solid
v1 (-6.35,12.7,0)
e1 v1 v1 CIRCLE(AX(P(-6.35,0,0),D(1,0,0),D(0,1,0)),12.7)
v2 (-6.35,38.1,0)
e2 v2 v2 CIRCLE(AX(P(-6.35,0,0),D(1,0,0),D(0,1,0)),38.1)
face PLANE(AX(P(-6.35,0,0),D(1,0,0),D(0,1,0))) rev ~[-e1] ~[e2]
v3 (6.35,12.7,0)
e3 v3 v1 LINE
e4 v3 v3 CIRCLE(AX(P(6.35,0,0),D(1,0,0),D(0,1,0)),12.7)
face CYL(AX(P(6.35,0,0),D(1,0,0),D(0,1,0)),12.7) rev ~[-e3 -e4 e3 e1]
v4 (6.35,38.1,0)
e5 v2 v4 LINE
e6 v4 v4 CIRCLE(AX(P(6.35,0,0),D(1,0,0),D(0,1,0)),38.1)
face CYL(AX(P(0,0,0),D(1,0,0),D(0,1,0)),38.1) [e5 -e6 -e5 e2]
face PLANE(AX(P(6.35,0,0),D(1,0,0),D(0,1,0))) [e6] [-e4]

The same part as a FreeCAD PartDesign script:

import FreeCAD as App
import Part
import Sketcher
from FreeCAD import Vector
Q = App.Units.Quantity

doc = App.newDocument("Part")
params = doc.addObject("Spreadsheet::Sheet", "Params")
for row, (alias, value) in enumerate([
    ("sketch1_diameter", "3 in"),
    ("pad1_length", "0.5 in"),
    ("sketch2_diameter", "1 in"),
], start=1):
    params.set(f"A{row}", alias)
    params.set(f"B{row}", "=" + value)
    params.setAlias(f"B{row}", alias)

body = doc.addObject("PartDesign::Body", "Body")

# Sketch on YZ plane
sketch1 = doc.addObject("Sketcher::SketchObject", "Sketch")
body.addObject(sketch1)
sketch1.AttachmentSupport = (doc.YZ_Plane, [""])
sketch1.MapMode = "FlatFace"
sketch1.addGeometry(Part.Circle(Vector(0, 0, 0), Vector(0, 0, 1), 38), False)
sketch1.addConstraint([
    Sketcher.Constraint("Coincident", 0, 3, -1, 1),
    Sketcher.Constraint("Diameter", 0, Q("3 in")),
])
sketch1.setExpression("Constraints[1]", "Params.sketch1_diameter")
pad1 = doc.addObject("PartDesign::Pad", "Pad")
body.addObject(pad1)
pad1.Profile = sketch1
pad1.setExpression("Length", "Params.pad1_length")
pad1.Midplane = True

# Sketch on YZ plane
sketch2 = doc.addObject("Sketcher::SketchObject", "Sketch001")
body.addObject(sketch2)
sketch2.AttachmentSupport = (doc.YZ_Plane, [""])
sketch2.MapMode = "FlatFace"
sketch2.AttachmentOffset = App.Placement(Vector(0, 0, 0.25 * 25.4), App.Rotation())
sketch2.addGeometry(Part.Circle(Vector(0, 0, 0), Vector(0, 0, 1), 13), False)
sketch2.addConstraint([
    Sketcher.Constraint("Coincident", 0, 3, -1, 1),
    Sketcher.Constraint("Diameter", 0, Q("1 in")),
])
sketch2.setExpression("Constraints[1]", "Params.sketch2_diameter")
pocket1 = doc.addObject("PartDesign::Pocket", "Pocket")
body.addObject(pocket1)
pocket1.Profile = sketch2
pocket1.Type = "ThroughAll"

doc.recompute()
